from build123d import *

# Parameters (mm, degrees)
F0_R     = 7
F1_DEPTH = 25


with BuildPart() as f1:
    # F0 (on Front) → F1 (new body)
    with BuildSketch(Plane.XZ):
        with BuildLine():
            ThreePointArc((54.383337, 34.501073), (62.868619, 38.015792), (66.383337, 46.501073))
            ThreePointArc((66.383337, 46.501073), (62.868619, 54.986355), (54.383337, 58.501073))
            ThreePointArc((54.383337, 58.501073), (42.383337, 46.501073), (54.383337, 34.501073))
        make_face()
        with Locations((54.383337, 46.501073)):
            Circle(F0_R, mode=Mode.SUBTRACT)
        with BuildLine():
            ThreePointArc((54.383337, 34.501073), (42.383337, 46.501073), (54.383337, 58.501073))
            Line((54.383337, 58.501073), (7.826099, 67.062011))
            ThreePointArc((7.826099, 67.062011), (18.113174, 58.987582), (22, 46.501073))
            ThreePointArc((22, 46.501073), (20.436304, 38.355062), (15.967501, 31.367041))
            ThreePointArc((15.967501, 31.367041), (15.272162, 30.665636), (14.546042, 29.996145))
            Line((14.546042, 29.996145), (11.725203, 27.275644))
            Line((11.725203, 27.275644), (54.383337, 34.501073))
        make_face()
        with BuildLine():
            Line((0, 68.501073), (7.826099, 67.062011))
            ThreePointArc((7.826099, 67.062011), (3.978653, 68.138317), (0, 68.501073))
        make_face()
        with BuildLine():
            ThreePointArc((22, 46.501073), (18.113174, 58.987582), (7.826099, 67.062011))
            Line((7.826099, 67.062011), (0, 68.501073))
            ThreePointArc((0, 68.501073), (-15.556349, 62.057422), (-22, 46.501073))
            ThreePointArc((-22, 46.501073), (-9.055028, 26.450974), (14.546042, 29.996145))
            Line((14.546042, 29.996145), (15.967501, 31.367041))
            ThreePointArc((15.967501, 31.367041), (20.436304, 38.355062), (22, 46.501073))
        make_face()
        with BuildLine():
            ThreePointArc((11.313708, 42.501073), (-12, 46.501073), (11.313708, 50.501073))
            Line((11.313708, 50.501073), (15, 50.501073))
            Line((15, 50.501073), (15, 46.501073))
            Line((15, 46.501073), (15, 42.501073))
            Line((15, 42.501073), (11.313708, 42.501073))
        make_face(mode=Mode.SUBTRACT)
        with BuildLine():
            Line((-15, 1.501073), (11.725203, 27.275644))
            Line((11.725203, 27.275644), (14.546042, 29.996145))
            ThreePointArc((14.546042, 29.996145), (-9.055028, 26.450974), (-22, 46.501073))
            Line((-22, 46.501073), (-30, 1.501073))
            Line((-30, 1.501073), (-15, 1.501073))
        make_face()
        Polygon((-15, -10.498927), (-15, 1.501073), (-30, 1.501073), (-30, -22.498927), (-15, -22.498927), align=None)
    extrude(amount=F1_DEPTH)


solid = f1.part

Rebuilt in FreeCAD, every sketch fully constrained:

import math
import FreeCAD as App
import Part
import Sketcher

V = App.Vector

doc = App.newDocument("Part")
body = doc.addObject("PartDesign::Body", "Body")

# Sketch on XZ plane
sketch1 = body.newObject("Sketcher::SketchObject", "Sketch")
sketch1.AttachmentSupport = (doc.getObject("XZ_Plane"), [""])
sketch1.MapMode = "FlatFace"
sketch1.addGeometry([
    Part.ArcOfCircle(Part.Circle(V(0, 46.5, 0), V(0, 0, 1), 22), math.radians(90), math.radians(180)),  # 0
    Part.LineSegment(V(-22, 46.5, 0), V(-30, 1.5, 0)),  # 1
    Part.LineSegment(V(-30, 1.5, 0), V(-30, -22.5, 0)),  # 2
    Part.LineSegment(V(-30, -22.5, 0), V(-15, -22.5, 0)),  # 3
    Part.LineSegment(V(-15, -22.5, 0), V(-15, 1.5, 0)),  # 4
    Part.LineSegment(V(-15, 1.5, 0), V(11.7, 27.3, 0)),  # 5
    Part.LineSegment(V(11.7, 27.3, 0), V(54.4, 34.5, 0)),  # 6
    Part.ArcOfCircle(Part.Circle(V(54.4, 46.5, 0), V(0, 0, 1), 12), math.radians(-90), math.radians(0)),  # 7
    Part.ArcOfCircle(Part.Circle(V(54.4, 46.5, 0), V(0, 0, 1), 12), math.radians(0), math.radians(90)),  # 8
    Part.LineSegment(V(54.4, 58.5, 0), V(7.8, 67.1, 0)),  # 9
    Part.ArcOfCircle(Part.Circle(V(0, 46.5, 0), V(0, 0, 1), 22), math.radians(69), math.radians(90)),  # 10
    Part.ArcOfCircle(Part.Circle(V(0, 46.5, 0), V(0, 0, 1), 22), math.radians(-48.61), math.radians(-43.46)),  # 11
    Part.LineSegment(V(14.5, 30, 0), V(16, 31.4, 0)),  # 12
    Part.LineSegment(V(15, 42.5, 0), V(11.3, 42.5, 0)),  # 13
    Part.ArcOfCircle(Part.Circle(V(0, 46.5, 0), V(0, 0, 1), 12), math.radians(19), math.radians(341)),  # 14
    Part.LineSegment(V(11.3, 50.5, 0), V(15, 50.5, 0)),  # 15
    Part.LineSegment(V(15, 50.5, 0), V(15, 42.5, 0)),  # 16
    Part.Circle(V(54.4, 46.5, 0), V(0, 0, 1), 7),  # 17
], False)
sketch1.addConstraint([
    Sketcher.Constraint("Coincident", 0, 2, 1, 1),
    Sketcher.Constraint("Coincident", 1, 2, 2, 1),
    Sketcher.Constraint("Coincident", 2, 2, 3, 1),
    Sketcher.Constraint("Coincident", 3, 2, 4, 1),
    Sketcher.Constraint("Coincident", 4, 2, 5, 1),
    Sketcher.Constraint("Coincident", 5, 2, 6, 1),
    Sketcher.Constraint("Coincident", 6, 2, 7, 1),
    Sketcher.Constraint("Tangent", 7, 2, 8, 1),
    Sketcher.Constraint("Coincident", 8, 2, 9, 1),
    Sketcher.Constraint("Coincident", 9, 2, 10, 1),
    Sketcher.Constraint("Tangent", 10, 2, 0, 1),
    Sketcher.Constraint("Coincident", 11, 1, 12, 1),
    Sketcher.Constraint("Coincident", 12, 2, 11, 2),
    Sketcher.Constraint("Coincident", 13, 2, 14, 2),
    Sketcher.Constraint("Coincident", 14, 1, 15, 1),
    Sketcher.Constraint("Coincident", 15, 2, 16, 1),
    Sketcher.Constraint("Coincident", 16, 2, 13, 1),
    Sketcher.Constraint("Vertical", 2),
    Sketcher.Constraint("Horizontal", 3),
    Sketcher.Constraint("Vertical", 4),
    Sketcher.Constraint("Horizontal", 13),
    Sketcher.Constraint("Horizontal", 15),
    Sketcher.Constraint("Vertical", 16),
    Sketcher.Constraint("Coincident", 14, 3, 0, 3),
    Sketcher.Constraint("Coincident", 17, 3, 7, 3),
    Sketcher.Constraint("Equal", 7, 8),
    Sketcher.Constraint("Equal", 8, 14),
    Sketcher.Constraint("PointOnObject", 0, 3, -2),
    Sketcher.Constraint("PointOnObject", 10, 2, -2),
    Sketcher.Constraint("Parallel", 5, 12),
    Sketcher.Constraint("Horizontal", 0, 3, 7, 3),
    Sketcher.Constraint("Horizontal", 17, 3, 0, 2),
    Sketcher.Constraint("Horizontal", 1, 2, 4, 2),
    Sketcher.Constraint("Horizontal", 0, 2, 7, 2),
    Sketcher.Constraint("Vertical", 17, 3, 6, 2),
    Sketcher.Constraint("Vertical", 6, 2, 8, 2),
    Sketcher.Constraint("Vertical", 13, 2, 14, 1),
    Sketcher.Constraint("Diameter", 17, 14.0),
    Sketcher.Constraint("Radius", 0, 22.000001),
    Sketcher.Constraint("Radius", 7, 12.0),
    Sketcher.Constraint("DistanceX", 3, 1, 3, 2, 15.0),
    Sketcher.Constraint("DistanceY", 2, 2, 2, 1, 24.0),
    Sketcher.Constraint("DistanceY", 16, 2, 16, 1, 8.0),
    Sketcher.Constraint("DistanceX", 1, 2, -1, 1, 30.0),
    Sketcher.Constraint("DistanceX", -1, 1, 15, 2, 15.0),
    Sketcher.Constraint("DistanceY", 1, 2, 0, 2, 45.0),
    Sketcher.Constraint("Radius", 10, 21.999988),
    Sketcher.Constraint("Radius", 11, 22.000052),
    Sketcher.Constraint("DistanceX", -1, 1, 9, 2, 7.826099),
    Sketcher.Constraint("DistanceX", -1, 1, 12, 2, 15.967501),
    Sketcher.Constraint("DistanceX", 10, 3, 5, 2, 11.725201),
    Sketcher.Constraint("DistanceY", 5, 2, 11, 1, 2.720501),
    Sketcher.Constraint("Distance", 5, 37.129032),
    Sketcher.Constraint("Distance", 6, 43.265728),
    Sketcher.Constraint("DistanceY", -1, 1, 9, 2, 67.062011),
    Sketcher.Constraint("DistanceY", -1, 1, 12, 2, 31.367041),
])
pad1 = body.newObject("PartDesign::Pad", "Pad")
pad1.Profile = sketch1
pad1.Length = 25

doc.recompute()
